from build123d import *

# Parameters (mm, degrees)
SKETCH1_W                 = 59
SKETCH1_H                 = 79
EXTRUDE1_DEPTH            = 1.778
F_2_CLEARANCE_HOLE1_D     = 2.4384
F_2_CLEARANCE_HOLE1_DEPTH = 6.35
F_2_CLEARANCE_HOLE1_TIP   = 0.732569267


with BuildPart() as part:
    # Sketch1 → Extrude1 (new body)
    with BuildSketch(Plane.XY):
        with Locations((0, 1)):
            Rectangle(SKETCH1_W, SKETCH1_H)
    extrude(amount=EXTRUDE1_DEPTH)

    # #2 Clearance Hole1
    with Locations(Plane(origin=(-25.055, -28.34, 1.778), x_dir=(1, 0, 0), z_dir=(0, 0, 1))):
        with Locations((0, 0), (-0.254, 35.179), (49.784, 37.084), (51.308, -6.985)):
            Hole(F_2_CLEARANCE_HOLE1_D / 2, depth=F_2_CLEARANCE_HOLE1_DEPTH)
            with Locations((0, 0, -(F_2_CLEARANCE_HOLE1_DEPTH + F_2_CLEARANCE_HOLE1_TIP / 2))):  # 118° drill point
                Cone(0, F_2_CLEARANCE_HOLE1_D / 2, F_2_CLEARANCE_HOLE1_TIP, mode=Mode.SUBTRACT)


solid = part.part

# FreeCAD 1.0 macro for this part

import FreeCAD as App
import Part
import Sketcher

V = App.Vector
Q = App.Units.Quantity

doc = App.newDocument("Part")
body = doc.addObject("PartDesign::Body", "Body")

sketch1 = body.newObject("Sketcher::SketchObject", "Sketch")
sketch1.AttachmentSupport = (doc.getObject("XY_Plane"), [""])
sketch1.MapMode = "FlatFace"
sketch1.addGeometry([
    Part.LineSegment(V(-30, 40, 0), V(-30, -38, 0)),
    Part.LineSegment(V(-30, -38, 0), V(30, -38, 0)),
    Part.LineSegment(V(30, -38, 0), V(30, 40, 0)),
    Part.LineSegment(V(30, 40, 0), V(-30, 40, 0)),
], False)
sketch1.addConstraint([
    Sketcher.Constraint("Coincident", 0, 2, 1, 1),
    Sketcher.Constraint("Coincident", 1, 2, 2, 1),
    Sketcher.Constraint("Coincident", 2, 2, 3, 1),
    Sketcher.Constraint("Coincident", 3, 2, 0, 1),
    Sketcher.Constraint("Vertical", 0),
    Sketcher.Constraint("Horizontal", 1),
    Sketcher.Constraint("Vertical", 2),
    Sketcher.Constraint("Horizontal", 3),
    Sketcher.Constraint("DistanceX", 1, 1, 1, 2, Q("59 mm")),
    Sketcher.Constraint("DistanceY", 0, 2, 0, 1, Q("79 mm")),
    Sketcher.Constraint("DistanceX", 0, 2, -1, 1, Q("29.5 mm")),
    Sketcher.Constraint("DistanceY", 0, 2, -1, 1, Q("38.5 mm")),
])
pad1 = body.newObject("PartDesign::Pad", "Pad")
pad1.Profile = sketch1
pad1.Length = Q("0.07 in")

sketch2 = body.newObject("Sketcher::SketchObject", "Sketch001")
sketch2.AttachmentSupport = (doc.getObject("XY_Plane"), [""])
sketch2.MapMode = "FlatFace"
sketch2.AttachmentOffset = App.Placement(V(0, 0, 0.07 * 25.4), App.Rotation())
sketch2.addGeometry([
    Part.Circle(V(-25.1, -28.3, 0), V(0, 0, 1), 1.2),
    Part.Circle(V(-25.3, 6.8, 0), V(0, 0, 1), 1.2),
    Part.Circle(V(24.7, 8.7, 0), V(0, 0, 1), 1.2),
    Part.Circle(V(26.3, -35.3, 0), V(0, 0, 1), 1.2),
], False)
sketch2.addConstraint([
    Sketcher.Constraint("Equal", 0, 1),
    Sketcher.Constraint("Equal", 1, 2),
    Sketcher.Constraint("Equal", 2, 3),
    Sketcher.Constraint("Diameter", 0, Q("0.096 in")),
    Sketcher.Constraint("DistanceX", 1, 3, 0, 3, Q("0.01 in")),
    Sketcher.Constraint("DistanceX", 1, 3, 2, 3, Q("1.97 in")),
    Sketcher.Constraint("DistanceY", 0, 3, 2, 3, Q("1.46 in")),
    Sketcher.Constraint("DistanceX", 2, 3, 3, 3, Q("0.06 in")),
    Sketcher.Constraint("DistanceY", 3, 3, 1, 3, Q("1.66 in")),
    Sketcher.Constraint("DistanceY", 0, 3, 1, 3, Q("1.385 in")),
    Sketcher.Constraint("DistanceX", 0, 3, -1, 1, Q("25.055 mm")),
    Sketcher.Constraint("DistanceY", 0, 3, -1, 1, Q("28.34 mm")),
])
doc.recompute()
hole = body.newObject("PartDesign::Hole", "Hole")
hole.Profile = sketch2
hole.ThreadType = "None"
hole.Diameter = Q("0.096 in")
hole.DepthType = "Dimension"
hole.Depth = Q("0.25 in")
hole.DrillPoint = "Angled"
hole.DrillPointAngle = 118

doc.recompute()
